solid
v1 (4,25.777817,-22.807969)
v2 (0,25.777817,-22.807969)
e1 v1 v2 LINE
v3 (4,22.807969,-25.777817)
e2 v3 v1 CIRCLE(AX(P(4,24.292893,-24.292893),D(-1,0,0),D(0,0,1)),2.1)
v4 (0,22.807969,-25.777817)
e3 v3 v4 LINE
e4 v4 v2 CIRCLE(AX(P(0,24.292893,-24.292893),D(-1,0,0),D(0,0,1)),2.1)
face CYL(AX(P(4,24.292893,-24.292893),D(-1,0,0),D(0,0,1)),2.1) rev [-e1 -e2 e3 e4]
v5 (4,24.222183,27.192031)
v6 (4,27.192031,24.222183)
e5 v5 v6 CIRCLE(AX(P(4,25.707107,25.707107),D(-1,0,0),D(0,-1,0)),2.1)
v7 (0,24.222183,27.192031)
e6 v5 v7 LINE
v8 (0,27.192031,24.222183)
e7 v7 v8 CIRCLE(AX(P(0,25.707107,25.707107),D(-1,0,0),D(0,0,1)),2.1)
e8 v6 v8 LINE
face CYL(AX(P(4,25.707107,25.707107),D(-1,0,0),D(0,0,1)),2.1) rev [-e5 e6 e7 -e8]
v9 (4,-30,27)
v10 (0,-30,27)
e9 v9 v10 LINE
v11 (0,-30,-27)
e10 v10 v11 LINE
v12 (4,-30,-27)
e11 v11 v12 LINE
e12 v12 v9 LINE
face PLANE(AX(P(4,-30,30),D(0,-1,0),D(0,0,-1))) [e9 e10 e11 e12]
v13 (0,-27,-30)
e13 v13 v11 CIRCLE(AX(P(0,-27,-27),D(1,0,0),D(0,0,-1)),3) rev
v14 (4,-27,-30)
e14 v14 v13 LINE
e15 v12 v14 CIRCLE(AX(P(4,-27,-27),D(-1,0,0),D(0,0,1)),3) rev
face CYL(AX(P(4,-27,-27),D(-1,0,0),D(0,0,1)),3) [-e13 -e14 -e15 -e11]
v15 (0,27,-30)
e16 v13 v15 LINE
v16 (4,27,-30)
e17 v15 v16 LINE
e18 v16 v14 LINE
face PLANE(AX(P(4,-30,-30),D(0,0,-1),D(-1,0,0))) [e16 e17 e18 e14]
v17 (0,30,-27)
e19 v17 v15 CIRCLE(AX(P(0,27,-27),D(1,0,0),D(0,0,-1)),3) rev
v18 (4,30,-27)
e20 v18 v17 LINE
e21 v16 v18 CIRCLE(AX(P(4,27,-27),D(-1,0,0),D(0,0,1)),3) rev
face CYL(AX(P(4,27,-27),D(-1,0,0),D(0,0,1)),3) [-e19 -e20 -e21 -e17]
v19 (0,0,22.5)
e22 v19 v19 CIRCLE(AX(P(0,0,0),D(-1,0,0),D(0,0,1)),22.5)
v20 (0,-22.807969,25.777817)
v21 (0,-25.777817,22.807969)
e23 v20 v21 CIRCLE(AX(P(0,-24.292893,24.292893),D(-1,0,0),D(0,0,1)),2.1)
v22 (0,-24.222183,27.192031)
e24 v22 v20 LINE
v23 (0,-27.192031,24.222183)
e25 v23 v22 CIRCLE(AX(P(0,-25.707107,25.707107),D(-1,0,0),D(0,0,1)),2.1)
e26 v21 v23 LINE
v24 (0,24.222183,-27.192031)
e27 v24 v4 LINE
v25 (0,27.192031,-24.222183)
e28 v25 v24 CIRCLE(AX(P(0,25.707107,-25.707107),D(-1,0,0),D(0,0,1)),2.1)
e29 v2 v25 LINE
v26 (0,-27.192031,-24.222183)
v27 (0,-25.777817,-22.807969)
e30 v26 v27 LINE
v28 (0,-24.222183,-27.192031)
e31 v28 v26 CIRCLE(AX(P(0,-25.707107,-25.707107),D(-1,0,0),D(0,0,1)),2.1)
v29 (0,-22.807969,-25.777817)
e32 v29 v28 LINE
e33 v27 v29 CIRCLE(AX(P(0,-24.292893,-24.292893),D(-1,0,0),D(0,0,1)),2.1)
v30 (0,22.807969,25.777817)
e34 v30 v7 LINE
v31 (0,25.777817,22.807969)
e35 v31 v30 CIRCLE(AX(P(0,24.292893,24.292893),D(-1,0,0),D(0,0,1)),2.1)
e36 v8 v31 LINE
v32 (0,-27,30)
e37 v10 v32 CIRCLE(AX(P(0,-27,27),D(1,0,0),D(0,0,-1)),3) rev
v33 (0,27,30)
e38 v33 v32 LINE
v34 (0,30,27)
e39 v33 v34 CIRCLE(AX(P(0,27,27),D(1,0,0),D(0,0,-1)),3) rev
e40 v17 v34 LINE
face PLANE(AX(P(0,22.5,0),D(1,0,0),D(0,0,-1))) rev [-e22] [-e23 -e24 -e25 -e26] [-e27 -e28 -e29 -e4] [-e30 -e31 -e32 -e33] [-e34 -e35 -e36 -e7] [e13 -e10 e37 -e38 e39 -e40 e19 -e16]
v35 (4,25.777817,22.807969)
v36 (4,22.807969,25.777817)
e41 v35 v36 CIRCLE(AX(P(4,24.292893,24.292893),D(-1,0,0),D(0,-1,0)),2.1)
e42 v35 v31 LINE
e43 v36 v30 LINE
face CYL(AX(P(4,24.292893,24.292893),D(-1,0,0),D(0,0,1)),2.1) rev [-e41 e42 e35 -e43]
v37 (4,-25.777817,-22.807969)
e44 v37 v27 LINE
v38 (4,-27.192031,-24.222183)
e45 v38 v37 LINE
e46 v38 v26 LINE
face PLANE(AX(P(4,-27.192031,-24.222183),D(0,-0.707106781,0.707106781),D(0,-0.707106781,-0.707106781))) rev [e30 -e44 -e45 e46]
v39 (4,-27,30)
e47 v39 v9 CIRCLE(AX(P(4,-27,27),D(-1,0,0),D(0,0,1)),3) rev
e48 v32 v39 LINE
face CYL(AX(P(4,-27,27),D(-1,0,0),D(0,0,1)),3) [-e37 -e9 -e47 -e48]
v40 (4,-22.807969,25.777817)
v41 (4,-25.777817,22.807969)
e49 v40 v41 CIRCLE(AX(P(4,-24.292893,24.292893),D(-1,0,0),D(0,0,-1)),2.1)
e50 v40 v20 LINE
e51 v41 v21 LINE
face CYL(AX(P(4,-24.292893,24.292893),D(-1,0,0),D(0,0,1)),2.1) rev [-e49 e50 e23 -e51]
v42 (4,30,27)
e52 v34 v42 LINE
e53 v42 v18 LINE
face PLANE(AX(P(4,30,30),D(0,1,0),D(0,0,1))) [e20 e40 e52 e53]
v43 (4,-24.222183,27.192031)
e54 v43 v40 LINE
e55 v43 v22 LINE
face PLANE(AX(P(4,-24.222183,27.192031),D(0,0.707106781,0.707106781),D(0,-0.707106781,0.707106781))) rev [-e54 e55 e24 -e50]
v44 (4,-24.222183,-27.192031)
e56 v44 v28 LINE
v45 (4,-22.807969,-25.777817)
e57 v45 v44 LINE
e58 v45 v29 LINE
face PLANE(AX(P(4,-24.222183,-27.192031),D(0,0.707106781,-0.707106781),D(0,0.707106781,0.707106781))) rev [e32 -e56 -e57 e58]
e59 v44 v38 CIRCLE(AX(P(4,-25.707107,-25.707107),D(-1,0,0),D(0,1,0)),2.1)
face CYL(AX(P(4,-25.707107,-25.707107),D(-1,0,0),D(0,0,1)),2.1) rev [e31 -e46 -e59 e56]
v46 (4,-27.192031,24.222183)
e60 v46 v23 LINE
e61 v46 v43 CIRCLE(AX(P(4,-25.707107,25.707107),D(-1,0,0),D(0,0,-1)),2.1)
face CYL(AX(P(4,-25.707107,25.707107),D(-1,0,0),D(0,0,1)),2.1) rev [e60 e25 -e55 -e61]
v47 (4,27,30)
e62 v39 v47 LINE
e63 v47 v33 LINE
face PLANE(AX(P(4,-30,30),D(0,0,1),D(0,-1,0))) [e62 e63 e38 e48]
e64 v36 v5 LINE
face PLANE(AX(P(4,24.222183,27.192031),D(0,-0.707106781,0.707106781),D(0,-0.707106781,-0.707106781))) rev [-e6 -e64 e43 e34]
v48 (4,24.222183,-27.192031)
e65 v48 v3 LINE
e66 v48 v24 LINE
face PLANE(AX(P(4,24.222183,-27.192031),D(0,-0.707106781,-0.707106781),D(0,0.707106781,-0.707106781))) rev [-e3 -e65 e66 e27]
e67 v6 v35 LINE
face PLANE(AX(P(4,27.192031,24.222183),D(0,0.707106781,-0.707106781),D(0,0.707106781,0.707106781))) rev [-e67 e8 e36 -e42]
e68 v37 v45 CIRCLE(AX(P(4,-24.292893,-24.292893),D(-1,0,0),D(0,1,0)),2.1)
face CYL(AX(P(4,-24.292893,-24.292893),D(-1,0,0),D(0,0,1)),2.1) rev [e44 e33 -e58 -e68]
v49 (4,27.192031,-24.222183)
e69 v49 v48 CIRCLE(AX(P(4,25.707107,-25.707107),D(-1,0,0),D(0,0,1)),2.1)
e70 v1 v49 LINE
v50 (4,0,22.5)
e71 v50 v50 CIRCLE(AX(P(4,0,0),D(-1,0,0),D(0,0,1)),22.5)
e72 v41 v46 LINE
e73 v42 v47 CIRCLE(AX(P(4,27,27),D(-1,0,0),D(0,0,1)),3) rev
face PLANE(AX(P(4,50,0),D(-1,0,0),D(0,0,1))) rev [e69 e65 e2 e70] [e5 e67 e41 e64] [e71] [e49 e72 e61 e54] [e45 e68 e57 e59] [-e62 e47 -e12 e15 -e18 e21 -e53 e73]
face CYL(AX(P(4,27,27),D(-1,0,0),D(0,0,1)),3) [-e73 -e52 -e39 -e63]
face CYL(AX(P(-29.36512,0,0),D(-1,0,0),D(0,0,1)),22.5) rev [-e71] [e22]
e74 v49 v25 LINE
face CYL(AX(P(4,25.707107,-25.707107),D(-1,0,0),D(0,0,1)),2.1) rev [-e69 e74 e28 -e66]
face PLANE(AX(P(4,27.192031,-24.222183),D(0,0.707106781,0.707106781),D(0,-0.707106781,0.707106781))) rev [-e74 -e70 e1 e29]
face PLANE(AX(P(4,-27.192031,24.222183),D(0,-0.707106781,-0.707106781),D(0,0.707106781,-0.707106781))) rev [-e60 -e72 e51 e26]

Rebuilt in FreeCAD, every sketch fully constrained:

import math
import FreeCAD as App
import Part
import Sketcher
from FreeCAD import Vector
Q = App.Units.Quantity


def edges_at(feature, points):
    """Names of the edges that pass closest to the given points."""
    edges = feature.Shape.Edges
    near = lambda p: min(range(len(edges)), key=lambda i: edges[i].distToShape(Part.Vertex(*p))[0])
    return sorted({f"Edge{near(p) + 1}" for p in points})


def add_polygon(sketch, points):
    """Adds a closed chain of lines whose ends are joined by coincident constraints."""
    first, n = sketch.GeometryCount, len(points)
    for a, b in zip(points, points[1:] + points[:1]):
        sketch.addGeometry(Part.LineSegment(App.Vector(*a, 0), App.Vector(*b, 0)), False)
    for i in range(n):
        sketch.addConstraint(Sketcher.Constraint("Coincident", first + i, 2, first + (i + 1) % n, 1))

doc = App.newDocument("Part")
body = doc.addObject("PartDesign::Body", "Body")

sketch1 = doc.addObject("Sketcher::SketchObject", "Sketch")
body.addObject(sketch1)
sketch1.AttachmentSupport = (doc.XY_Plane, [""])
sketch1.MapMode = "FlatFace"
add_polygon(sketch1, [(0, 50), (0, 22.5), (4, 22.5), (4, 50)])
sketch1.addConstraint(Sketcher.Constraint("Vertical", 0))
sketch1.addConstraint(Sketcher.Constraint("Horizontal", 1))
sketch1.addConstraint(Sketcher.Constraint("Vertical", 2))
sketch1.addConstraint(Sketcher.Constraint("Horizontal", 3))
sketch1.addConstraint(Sketcher.Constraint("PointOnObject", 0, 2, -2))
sketch1.addConstraint(Sketcher.Constraint("DistanceX", 1, 1, 1, 2, 4.0))
sketch1.addConstraint(Sketcher.Constraint("DistanceY", 0, 2, 0, 1, 27.5))
sketch1.addConstraint(Sketcher.Constraint("DistanceY", -1, 1, 2, 2, 50.0))
revolution = doc.addObject("PartDesign::Revolution", "Revolution")
body.addObject(revolution)
revolution.Profile = sketch1
revolution.ReferenceAxis = (sketch1, ["H_Axis"])
revolution.Angle = 360

sketch2 = doc.addObject("Sketcher::SketchObject", "Sketch001")
body.addObject(sketch2)
sketch2.AttachmentSupport = (doc.YZ_Plane, [""])
sketch2.MapMode = "FlatFace"
sketch2.addGeometry(Part.Circle(Vector(0, 0, 0), Vector(0, 0, 1), 50), False)
add_polygon(sketch2, [(-30, 30), (-30, -30), (30, -30), (30, 30)])
sketch2.addConstraint(Sketcher.Constraint("Vertical", 1))
sketch2.addConstraint(Sketcher.Constraint("Horizontal", 2))
sketch2.addConstraint(Sketcher.Constraint("Vertical", 3))
sketch2.addConstraint(Sketcher.Constraint("Horizontal", 4))
sketch2.addConstraint(Sketcher.Constraint("Coincident", 0, 3, -1, 1))
sketch2.addConstraint(Sketcher.Constraint("Symmetric", 1, 2, 3, 2, -1, 1))
sketch2.addConstraint(Sketcher.Constraint("Equal", 4, 1))
sketch2.addConstraint(Sketcher.Constraint("Diameter", 0, 100.0))
sketch2.addConstraint(Sketcher.Constraint("DistanceX", 2, 1, 2, 2, 60.0))
pocket1 = doc.addObject("PartDesign::Pocket", "Pocket")
body.addObject(pocket1)
pocket1.Profile = sketch2
pocket1.Type = "ThroughAll"
pocket1.Midplane = True

sketch3 = doc.addObject("Sketcher::SketchObject", "Sketch002")
body.addObject(sketch3)
sketch3.AttachmentSupport = (doc.YZ_Plane, [""])
sketch3.MapMode = "FlatFace"
sketch3.addGeometry(Part.LineSegment(Vector(24.222183, -27.192031, 0), Vector(22.807969, -25.777817, 0)), False)
sketch3.addGeometry(Part.ArcOfCircle(Part.Circle(Vector(24.292893, -24.292893, 0), Vector(0, 0, 1), 2.1), math.radians(45), math.radians(225)), False)
sketch3.addGeometry(Part.LineSegment(Vector(25.777817, -22.807969, 0), Vector(27.192031, -24.222183, 0)), False)
sketch3.addGeometry(Part.ArcOfCircle(Part.Circle(Vector(25.707107, -25.707107, 0), Vector(0, 0, 1), 2.1), math.radians(-135), math.radians(45)), False)
sketch3.addConstraint(Sketcher.Constraint("Tangent", 0, 2, 1, 2))
sketch3.addConstraint(Sketcher.Constraint("Tangent", 1, 1, 2, 1))
sketch3.addConstraint(Sketcher.Constraint("Tangent", 2, 2, 3, 2))
sketch3.addConstraint(Sketcher.Constraint("Tangent", 3, 1, 0, 1))
sketch3.addConstraint(Sketcher.Constraint("Equal", 1, 3))
sketch3.addConstraint(Sketcher.Constraint("Radius", 1, 2.1))
sketch3.addConstraint(Sketcher.Constraint("Angle", 0, Q("135 deg")))
sketch3.addConstraint(Sketcher.Constraint("Distance", 0, 2.0))
sketch3.addConstraint(Sketcher.Constraint("DistanceX", -1, 1, 0, 2, 22.807969))
sketch3.addConstraint(Sketcher.Constraint("DistanceY", 1, 1, -1, 1, 22.807969))
pocket2 = doc.addObject("PartDesign::Pocket", "Pocket001")
body.addObject(pocket2)
pocket2.Profile = sketch3
pocket2.Length = 87.229103
pocket2.Midplane = True
doc.recompute()

polarpattern = doc.addObject("PartDesign::PolarPattern", "PolarPattern")
body.addObject(polarpattern)
polarpattern.Originals = [pocket2]
polarpattern.Axis = (doc.X_Axis, [""])
polarpattern.Angle = 360
polarpattern.Occurrences = 4
body.Tip = polarpattern
doc.recompute()

fillet = doc.addObject("PartDesign::Fillet", "Fillet")
body.addObject(fillet)
fillet.Base = (polarpattern, edges_at(polarpattern, [
    (2, 30, -30),
    (2, 30, 30),
    (2, -30, 30),
    (2, -30, -30),
]))
fillet.Radius = 3

doc.recompute()
